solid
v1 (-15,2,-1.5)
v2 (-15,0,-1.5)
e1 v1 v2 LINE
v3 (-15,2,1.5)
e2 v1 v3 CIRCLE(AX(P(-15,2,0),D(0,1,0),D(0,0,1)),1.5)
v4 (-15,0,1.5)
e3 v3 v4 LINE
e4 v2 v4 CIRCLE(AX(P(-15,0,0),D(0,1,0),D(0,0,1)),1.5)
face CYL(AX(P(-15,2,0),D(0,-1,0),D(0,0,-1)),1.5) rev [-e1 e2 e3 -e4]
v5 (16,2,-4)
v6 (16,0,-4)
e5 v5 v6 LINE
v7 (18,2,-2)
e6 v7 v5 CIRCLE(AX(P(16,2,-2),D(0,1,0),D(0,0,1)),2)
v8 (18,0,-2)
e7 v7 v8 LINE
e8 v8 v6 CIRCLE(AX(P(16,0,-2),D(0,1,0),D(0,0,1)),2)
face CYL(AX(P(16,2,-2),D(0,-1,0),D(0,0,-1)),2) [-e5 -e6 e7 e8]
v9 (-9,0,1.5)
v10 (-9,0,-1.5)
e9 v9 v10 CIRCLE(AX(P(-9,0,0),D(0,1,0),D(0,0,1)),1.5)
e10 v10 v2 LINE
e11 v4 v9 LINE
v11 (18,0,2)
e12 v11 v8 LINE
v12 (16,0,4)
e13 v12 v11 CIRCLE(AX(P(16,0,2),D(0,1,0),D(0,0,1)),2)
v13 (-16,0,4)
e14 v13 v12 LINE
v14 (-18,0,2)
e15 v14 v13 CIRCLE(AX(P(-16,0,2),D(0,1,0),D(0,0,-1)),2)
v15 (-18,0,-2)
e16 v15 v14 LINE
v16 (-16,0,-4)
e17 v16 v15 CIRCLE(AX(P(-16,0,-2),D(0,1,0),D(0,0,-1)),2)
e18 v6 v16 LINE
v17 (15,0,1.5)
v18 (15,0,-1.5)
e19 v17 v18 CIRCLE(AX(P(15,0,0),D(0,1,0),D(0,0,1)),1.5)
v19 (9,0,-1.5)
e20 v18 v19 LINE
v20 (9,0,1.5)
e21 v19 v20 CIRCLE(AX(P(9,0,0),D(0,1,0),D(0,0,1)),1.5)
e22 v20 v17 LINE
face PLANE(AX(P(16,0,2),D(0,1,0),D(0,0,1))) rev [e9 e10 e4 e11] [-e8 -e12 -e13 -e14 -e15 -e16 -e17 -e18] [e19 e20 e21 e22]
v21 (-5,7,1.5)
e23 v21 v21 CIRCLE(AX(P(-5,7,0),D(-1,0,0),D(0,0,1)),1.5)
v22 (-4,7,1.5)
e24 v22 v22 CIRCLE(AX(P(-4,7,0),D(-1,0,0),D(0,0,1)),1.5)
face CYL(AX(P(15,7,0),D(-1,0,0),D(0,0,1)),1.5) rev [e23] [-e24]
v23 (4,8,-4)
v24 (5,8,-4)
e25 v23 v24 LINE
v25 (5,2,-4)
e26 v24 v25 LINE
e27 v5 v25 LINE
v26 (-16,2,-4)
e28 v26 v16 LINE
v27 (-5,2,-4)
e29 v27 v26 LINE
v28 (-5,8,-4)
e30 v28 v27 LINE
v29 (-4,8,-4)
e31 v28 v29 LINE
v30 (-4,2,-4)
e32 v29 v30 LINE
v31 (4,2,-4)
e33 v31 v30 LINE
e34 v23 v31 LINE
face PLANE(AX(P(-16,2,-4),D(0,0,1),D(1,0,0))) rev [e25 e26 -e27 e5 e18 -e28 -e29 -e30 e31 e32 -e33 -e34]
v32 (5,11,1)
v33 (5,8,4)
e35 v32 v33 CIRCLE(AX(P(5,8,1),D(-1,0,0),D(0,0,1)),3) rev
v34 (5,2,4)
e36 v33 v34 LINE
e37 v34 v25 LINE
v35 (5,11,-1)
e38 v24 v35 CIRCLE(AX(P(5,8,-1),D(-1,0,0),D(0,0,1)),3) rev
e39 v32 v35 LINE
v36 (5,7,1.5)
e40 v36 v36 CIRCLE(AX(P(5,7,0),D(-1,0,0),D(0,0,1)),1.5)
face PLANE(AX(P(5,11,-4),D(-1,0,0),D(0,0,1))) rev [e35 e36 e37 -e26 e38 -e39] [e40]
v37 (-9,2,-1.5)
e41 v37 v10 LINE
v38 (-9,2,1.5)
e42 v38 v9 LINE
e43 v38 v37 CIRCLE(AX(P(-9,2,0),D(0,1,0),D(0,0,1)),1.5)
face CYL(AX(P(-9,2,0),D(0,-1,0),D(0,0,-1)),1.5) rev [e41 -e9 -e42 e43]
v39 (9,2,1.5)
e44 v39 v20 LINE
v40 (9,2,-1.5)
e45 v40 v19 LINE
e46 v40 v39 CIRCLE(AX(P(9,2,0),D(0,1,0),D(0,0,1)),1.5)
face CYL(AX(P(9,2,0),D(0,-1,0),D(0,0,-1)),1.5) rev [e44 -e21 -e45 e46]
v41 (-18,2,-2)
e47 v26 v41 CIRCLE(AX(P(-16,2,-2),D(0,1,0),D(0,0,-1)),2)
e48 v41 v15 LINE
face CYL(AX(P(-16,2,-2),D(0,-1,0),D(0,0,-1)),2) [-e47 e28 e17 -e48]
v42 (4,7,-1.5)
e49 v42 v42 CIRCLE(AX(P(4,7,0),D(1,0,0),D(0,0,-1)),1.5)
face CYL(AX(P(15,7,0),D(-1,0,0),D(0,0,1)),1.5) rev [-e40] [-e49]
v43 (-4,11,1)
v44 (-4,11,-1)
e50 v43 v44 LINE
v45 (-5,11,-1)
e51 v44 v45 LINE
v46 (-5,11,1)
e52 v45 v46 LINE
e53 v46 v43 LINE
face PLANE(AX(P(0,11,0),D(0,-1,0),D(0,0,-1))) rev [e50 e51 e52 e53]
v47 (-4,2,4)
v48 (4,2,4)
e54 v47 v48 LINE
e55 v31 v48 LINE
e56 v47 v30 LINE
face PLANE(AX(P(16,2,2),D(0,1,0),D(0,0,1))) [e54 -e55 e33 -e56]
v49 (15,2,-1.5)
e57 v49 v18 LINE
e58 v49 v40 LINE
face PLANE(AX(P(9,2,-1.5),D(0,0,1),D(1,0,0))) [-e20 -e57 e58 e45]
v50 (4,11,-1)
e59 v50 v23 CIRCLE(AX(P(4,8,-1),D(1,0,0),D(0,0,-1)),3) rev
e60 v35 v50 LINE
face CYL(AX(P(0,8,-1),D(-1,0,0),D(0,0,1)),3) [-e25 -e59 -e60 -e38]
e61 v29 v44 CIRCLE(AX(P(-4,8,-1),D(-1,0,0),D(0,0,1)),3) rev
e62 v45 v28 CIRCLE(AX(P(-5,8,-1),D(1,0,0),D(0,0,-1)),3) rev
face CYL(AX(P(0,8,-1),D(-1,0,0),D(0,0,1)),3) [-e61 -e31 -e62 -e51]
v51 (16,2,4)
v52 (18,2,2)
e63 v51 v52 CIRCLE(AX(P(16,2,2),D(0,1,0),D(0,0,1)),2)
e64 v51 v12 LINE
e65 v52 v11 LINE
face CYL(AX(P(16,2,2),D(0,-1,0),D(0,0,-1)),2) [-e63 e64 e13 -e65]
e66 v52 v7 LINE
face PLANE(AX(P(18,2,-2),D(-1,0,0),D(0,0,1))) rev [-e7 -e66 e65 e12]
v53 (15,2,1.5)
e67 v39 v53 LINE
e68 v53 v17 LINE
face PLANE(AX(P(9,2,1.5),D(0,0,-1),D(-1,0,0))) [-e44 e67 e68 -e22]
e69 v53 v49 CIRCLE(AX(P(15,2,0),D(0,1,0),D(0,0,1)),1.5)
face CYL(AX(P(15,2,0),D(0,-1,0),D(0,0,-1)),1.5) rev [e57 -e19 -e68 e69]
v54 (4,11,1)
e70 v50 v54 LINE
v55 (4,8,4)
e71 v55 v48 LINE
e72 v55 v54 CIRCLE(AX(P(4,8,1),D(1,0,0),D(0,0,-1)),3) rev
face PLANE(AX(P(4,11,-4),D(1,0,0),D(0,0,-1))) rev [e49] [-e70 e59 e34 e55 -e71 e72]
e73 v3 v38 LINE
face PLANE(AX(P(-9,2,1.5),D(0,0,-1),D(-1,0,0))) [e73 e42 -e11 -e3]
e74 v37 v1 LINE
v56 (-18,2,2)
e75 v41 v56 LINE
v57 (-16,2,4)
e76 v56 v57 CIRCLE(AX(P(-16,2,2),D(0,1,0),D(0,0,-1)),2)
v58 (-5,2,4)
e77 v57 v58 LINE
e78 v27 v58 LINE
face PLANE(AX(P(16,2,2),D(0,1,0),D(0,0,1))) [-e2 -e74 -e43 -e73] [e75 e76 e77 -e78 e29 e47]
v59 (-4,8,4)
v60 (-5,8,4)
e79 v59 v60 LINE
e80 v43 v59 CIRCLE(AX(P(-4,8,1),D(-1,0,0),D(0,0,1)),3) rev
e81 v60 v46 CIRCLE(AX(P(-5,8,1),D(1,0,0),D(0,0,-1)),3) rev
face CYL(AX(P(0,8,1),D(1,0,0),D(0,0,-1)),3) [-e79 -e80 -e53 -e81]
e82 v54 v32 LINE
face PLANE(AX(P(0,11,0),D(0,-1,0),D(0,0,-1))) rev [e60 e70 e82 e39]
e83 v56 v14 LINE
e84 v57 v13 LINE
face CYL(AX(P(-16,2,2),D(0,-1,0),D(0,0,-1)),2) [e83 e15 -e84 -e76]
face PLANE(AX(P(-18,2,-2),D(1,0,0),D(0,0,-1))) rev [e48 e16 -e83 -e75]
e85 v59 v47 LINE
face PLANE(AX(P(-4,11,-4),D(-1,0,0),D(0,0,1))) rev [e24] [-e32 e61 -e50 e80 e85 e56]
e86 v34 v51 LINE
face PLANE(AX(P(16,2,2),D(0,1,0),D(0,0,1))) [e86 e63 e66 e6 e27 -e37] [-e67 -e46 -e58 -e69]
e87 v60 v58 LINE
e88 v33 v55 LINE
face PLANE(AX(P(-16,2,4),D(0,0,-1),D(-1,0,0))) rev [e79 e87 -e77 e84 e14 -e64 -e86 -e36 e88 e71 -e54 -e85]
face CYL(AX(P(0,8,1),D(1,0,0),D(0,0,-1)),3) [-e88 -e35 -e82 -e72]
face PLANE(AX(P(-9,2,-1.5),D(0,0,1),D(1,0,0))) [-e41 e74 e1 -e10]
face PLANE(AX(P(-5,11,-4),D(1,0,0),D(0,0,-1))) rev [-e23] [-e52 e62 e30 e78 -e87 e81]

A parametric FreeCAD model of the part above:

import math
import FreeCAD as App
import Part
import Sketcher

V = App.Vector
Q = App.Units.Quantity


def edges_at(feature, points):
    """Names of the edges that pass closest to the given points."""
    edges = feature.Shape.Edges
    near = lambda p: min(range(len(edges)), key=lambda i: edges[i].distToShape(Part.Vertex(*p))[0])
    return sorted({f"Edge{near(p) + 1}" for p in points})

doc = App.newDocument("Part")
body = doc.addObject("PartDesign::Body", "Body")

sketch1 = body.newObject("Sketcher::SketchObject", "Sketch")
sketch1.AttachmentSupport = (doc.getObject("XZ_Plane"), [""])
sketch1.MapMode = "FlatFace"
sketch1.addGeometry([
    Part.LineSegment(V(16, -4, 0), V(-16, -4, 0)),
    Part.ArcOfCircle(Part.Circle(V(-16, -2, 0), V(0, 0, 1), 2), math.radians(-180), math.radians(-90)),
    Part.LineSegment(V(-18, -2, 0), V(-18, 2, 0)),
    Part.ArcOfCircle(Part.Circle(V(-16, 2, 0), V(0, 0, 1), 2), math.radians(90), math.radians(180)),
    Part.LineSegment(V(-16, 4, 0), V(16, 4, 0)),
    Part.ArcOfCircle(Part.Circle(V(16, 2, 0), V(0, 0, 1), 2), math.radians(0), math.radians(90)),
    Part.LineSegment(V(18, 2, 0), V(18, -2, 0)),
    Part.ArcOfCircle(Part.Circle(V(16, -2, 0), V(0, 0, 1), 2), math.radians(-90), math.radians(0)),
    Part.LineSegment(V(9, -1.5, 0), V(15, -1.5, 0)),
    Part.ArcOfCircle(Part.Circle(V(15, 0, 0), V(0, 0, 1), 1.5), math.radians(-90), math.radians(90)),
    Part.LineSegment(V(15, 1.5, 0), V(9, 1.5, 0)),
    Part.ArcOfCircle(Part.Circle(V(9, 0, 0), V(0, 0, 1), 1.5), math.radians(90), math.radians(270)),
    Part.LineSegment(V(-9, 1.5, 0), V(-15, 1.5, 0)),
    Part.ArcOfCircle(Part.Circle(V(-15, 0, 0), V(0, 0, 1), 1.5), math.radians(90), math.radians(270)),
    Part.LineSegment(V(-15, -1.5, 0), V(-9, -1.5, 0)),
    Part.ArcOfCircle(Part.Circle(V(-9, 0, 0), V(0, 0, 1), 1.5), math.radians(-90), math.radians(90)),
], False)
sketch1.addConstraint([
    Sketcher.Constraint("Tangent", 0, 2, 1, 2),
    Sketcher.Constraint("Tangent", 1, 1, 2, 1),
    Sketcher.Constraint("Tangent", 2, 2, 3, 2),
    Sketcher.Constraint("Tangent", 3, 1, 4, 1),
    Sketcher.Constraint("Tangent", 4, 2, 5, 2),
    Sketcher.Constraint("Tangent", 5, 1, 6, 1),
    Sketcher.Constraint("Tangent", 6, 2, 7, 2),
    Sketcher.Constraint("Tangent", 7, 1, 0, 1),
    Sketcher.Constraint("Tangent", 8, 2, 9, 1),
    Sketcher.Constraint("Tangent", 9, 2, 10, 1),
    Sketcher.Constraint("Tangent", 10, 2, 11, 1),
    Sketcher.Constraint("Tangent", 11, 2, 8, 1),
    Sketcher.Constraint("Tangent", 12, 2, 13, 1),
    Sketcher.Constraint("Tangent", 13, 2, 14, 1),
    Sketcher.Constraint("Tangent", 14, 2, 15, 1),
    Sketcher.Constraint("Tangent", 15, 2, 12, 1),
    Sketcher.Constraint("Horizontal", 0),
    Sketcher.Constraint("Vertical", 2),
    Sketcher.Constraint("Horizontal", 4),
    Sketcher.Constraint("Vertical", 6),
    Sketcher.Constraint("Horizontal", 8),
    Sketcher.Constraint("Horizontal", 10),
    Sketcher.Constraint("Horizontal", 12),
    Sketcher.Constraint("Horizontal", 14),
    Sketcher.Constraint("Equal", 1, 3),
    Sketcher.Constraint("Equal", 3, 5),
    Sketcher.Constraint("Equal", 5, 7),
    Sketcher.Constraint("Equal", 11, 13),
    Sketcher.Constraint("Symmetric", 1, 3, 5, 3, -1, 1),
    Sketcher.Constraint("Symmetric", 9, 3, 13, 3, -1, 1),
    Sketcher.Constraint("Symmetric", 11, 3, 15, 3, -2),
    Sketcher.Constraint("Radius", 1, Q("2 mm")),
    Sketcher.Constraint("Radius", 9, Q("1.5 mm")),
    Sketcher.Constraint("DistanceX", 0, 2, 0, 1, Q("32 mm")),
    Sketcher.Constraint("DistanceX", 8, 1, 8, 2, Q("6 mm")),
    Sketcher.Constraint("DistanceY", 2, 1, 2, 2, Q("4 mm")),
    Sketcher.Constraint("DistanceX", -1, 1, 9, 3, Q("15 mm")),
])
pad1 = body.newObject("PartDesign::Pad", "Pad")
pad1.Profile = sketch1
pad1.Length = 2
pad1.Reversed = True

sketch2 = body.newObject("Sketcher::SketchObject", "Sketch001")
sketch2.AttachmentSupport = (doc.getObject("XZ_Plane"), [""])
sketch2.MapMode = "FlatFace"
sketch2.AttachmentOffset = App.Placement(V(0, 0, -2), App.Rotation())
sketch2.addGeometry([
    Part.LineSegment(V(4, -4, 0), V(4, 4, 0)),
    Part.LineSegment(V(4, 4, 0), V(5, 4, 0)),
    Part.LineSegment(V(5, 4, 0), V(5, -4, 0)),
    Part.LineSegment(V(5, -4, 0), V(4, -4, 0)),
    Part.LineSegment(V(-5, -4, 0), V(-5, 4, 0)),
    Part.LineSegment(V(-5, 4, 0), V(-4, 4, 0)),
    Part.LineSegment(V(-4, 4, 0), V(-4, -4, 0)),
    Part.LineSegment(V(-4, -4, 0), V(-5, -4, 0)),
], False)
sketch2.addConstraint([
    Sketcher.Constraint("Coincident", 0, 2, 1, 1),
    Sketcher.Constraint("Coincident", 1, 2, 2, 1),
    Sketcher.Constraint("Coincident", 2, 2, 3, 1),
    Sketcher.Constraint("Coincident", 3, 2, 0, 1),
    Sketcher.Constraint("Coincident", 4, 2, 5, 1),
    Sketcher.Constraint("Coincident", 5, 2, 6, 1),
    Sketcher.Constraint("Coincident", 6, 2, 7, 1),
    Sketcher.Constraint("Coincident", 7, 2, 4, 1),
    Sketcher.Constraint("Vertical", 0),
    Sketcher.Constraint("Horizontal", 1),
    Sketcher.Constraint("Vertical", 2),
    Sketcher.Constraint("Horizontal", 3),
    Sketcher.Constraint("Vertical", 4),
    Sketcher.Constraint("Horizontal", 5),
    Sketcher.Constraint("Vertical", 6),
    Sketcher.Constraint("Horizontal", 7),
    Sketcher.Constraint("Symmetric", 2, 2, 4, 2, -1, 1),
    Sketcher.Constraint("Symmetric", 0, 2, 6, 2, -1, 1),
    Sketcher.Constraint("Horizontal", 1, 2, 4, 2),
    Sketcher.Constraint("DistanceX", 1, 1, 1, 2, Q("1 mm")),
    Sketcher.Constraint("DistanceY", 0, 1, 0, 2, Q("8 mm")),
    Sketcher.Constraint("DistanceX", -1, 1, 0, 2, Q("4 mm")),
])
pad2 = body.newObject("PartDesign::Pad", "Pad001")
pad2.Profile = sketch2
pad2.Length = 9
pad2.Reversed = True
doc.recompute()

fillet = body.newObject("PartDesign::Fillet", "Fillet")
fillet.Base = (pad2, edges_at(pad2, [
    (4.5, 11, -4),
    (4.5, 11, 4),
    (-4.5, 11, -4),
    (-4.5, 11, 4),
]))
fillet.Radius = 3

sketch3 = body.newObject("Sketcher::SketchObject", "Sketch002")
sketch3.AttachmentSupport = (doc.getObject("YZ_Plane"), [""])
sketch3.MapMode = "FlatFace"
sketch3.AttachmentOffset = App.Placement(V(0, 0, -5), App.Rotation())
sketch3.addGeometry(Part.Circle(V(7, 0, 0), V(0, 0, 1), 1.5), False)
sketch3.addConstraint([
    Sketcher.Constraint("PointOnObject", 0, 3, -1),
    Sketcher.Constraint("Diameter", 0, Q("3 mm")),
    Sketcher.Constraint("DistanceX", -1, 1, 0, 3, Q("7 mm")),
])
pocket1 = body.newObject("PartDesign::Pocket", "Pocket")
pocket1.Profile = sketch3
pocket1.Length = 20
pocket1.Reversed = True

doc.recompute()
